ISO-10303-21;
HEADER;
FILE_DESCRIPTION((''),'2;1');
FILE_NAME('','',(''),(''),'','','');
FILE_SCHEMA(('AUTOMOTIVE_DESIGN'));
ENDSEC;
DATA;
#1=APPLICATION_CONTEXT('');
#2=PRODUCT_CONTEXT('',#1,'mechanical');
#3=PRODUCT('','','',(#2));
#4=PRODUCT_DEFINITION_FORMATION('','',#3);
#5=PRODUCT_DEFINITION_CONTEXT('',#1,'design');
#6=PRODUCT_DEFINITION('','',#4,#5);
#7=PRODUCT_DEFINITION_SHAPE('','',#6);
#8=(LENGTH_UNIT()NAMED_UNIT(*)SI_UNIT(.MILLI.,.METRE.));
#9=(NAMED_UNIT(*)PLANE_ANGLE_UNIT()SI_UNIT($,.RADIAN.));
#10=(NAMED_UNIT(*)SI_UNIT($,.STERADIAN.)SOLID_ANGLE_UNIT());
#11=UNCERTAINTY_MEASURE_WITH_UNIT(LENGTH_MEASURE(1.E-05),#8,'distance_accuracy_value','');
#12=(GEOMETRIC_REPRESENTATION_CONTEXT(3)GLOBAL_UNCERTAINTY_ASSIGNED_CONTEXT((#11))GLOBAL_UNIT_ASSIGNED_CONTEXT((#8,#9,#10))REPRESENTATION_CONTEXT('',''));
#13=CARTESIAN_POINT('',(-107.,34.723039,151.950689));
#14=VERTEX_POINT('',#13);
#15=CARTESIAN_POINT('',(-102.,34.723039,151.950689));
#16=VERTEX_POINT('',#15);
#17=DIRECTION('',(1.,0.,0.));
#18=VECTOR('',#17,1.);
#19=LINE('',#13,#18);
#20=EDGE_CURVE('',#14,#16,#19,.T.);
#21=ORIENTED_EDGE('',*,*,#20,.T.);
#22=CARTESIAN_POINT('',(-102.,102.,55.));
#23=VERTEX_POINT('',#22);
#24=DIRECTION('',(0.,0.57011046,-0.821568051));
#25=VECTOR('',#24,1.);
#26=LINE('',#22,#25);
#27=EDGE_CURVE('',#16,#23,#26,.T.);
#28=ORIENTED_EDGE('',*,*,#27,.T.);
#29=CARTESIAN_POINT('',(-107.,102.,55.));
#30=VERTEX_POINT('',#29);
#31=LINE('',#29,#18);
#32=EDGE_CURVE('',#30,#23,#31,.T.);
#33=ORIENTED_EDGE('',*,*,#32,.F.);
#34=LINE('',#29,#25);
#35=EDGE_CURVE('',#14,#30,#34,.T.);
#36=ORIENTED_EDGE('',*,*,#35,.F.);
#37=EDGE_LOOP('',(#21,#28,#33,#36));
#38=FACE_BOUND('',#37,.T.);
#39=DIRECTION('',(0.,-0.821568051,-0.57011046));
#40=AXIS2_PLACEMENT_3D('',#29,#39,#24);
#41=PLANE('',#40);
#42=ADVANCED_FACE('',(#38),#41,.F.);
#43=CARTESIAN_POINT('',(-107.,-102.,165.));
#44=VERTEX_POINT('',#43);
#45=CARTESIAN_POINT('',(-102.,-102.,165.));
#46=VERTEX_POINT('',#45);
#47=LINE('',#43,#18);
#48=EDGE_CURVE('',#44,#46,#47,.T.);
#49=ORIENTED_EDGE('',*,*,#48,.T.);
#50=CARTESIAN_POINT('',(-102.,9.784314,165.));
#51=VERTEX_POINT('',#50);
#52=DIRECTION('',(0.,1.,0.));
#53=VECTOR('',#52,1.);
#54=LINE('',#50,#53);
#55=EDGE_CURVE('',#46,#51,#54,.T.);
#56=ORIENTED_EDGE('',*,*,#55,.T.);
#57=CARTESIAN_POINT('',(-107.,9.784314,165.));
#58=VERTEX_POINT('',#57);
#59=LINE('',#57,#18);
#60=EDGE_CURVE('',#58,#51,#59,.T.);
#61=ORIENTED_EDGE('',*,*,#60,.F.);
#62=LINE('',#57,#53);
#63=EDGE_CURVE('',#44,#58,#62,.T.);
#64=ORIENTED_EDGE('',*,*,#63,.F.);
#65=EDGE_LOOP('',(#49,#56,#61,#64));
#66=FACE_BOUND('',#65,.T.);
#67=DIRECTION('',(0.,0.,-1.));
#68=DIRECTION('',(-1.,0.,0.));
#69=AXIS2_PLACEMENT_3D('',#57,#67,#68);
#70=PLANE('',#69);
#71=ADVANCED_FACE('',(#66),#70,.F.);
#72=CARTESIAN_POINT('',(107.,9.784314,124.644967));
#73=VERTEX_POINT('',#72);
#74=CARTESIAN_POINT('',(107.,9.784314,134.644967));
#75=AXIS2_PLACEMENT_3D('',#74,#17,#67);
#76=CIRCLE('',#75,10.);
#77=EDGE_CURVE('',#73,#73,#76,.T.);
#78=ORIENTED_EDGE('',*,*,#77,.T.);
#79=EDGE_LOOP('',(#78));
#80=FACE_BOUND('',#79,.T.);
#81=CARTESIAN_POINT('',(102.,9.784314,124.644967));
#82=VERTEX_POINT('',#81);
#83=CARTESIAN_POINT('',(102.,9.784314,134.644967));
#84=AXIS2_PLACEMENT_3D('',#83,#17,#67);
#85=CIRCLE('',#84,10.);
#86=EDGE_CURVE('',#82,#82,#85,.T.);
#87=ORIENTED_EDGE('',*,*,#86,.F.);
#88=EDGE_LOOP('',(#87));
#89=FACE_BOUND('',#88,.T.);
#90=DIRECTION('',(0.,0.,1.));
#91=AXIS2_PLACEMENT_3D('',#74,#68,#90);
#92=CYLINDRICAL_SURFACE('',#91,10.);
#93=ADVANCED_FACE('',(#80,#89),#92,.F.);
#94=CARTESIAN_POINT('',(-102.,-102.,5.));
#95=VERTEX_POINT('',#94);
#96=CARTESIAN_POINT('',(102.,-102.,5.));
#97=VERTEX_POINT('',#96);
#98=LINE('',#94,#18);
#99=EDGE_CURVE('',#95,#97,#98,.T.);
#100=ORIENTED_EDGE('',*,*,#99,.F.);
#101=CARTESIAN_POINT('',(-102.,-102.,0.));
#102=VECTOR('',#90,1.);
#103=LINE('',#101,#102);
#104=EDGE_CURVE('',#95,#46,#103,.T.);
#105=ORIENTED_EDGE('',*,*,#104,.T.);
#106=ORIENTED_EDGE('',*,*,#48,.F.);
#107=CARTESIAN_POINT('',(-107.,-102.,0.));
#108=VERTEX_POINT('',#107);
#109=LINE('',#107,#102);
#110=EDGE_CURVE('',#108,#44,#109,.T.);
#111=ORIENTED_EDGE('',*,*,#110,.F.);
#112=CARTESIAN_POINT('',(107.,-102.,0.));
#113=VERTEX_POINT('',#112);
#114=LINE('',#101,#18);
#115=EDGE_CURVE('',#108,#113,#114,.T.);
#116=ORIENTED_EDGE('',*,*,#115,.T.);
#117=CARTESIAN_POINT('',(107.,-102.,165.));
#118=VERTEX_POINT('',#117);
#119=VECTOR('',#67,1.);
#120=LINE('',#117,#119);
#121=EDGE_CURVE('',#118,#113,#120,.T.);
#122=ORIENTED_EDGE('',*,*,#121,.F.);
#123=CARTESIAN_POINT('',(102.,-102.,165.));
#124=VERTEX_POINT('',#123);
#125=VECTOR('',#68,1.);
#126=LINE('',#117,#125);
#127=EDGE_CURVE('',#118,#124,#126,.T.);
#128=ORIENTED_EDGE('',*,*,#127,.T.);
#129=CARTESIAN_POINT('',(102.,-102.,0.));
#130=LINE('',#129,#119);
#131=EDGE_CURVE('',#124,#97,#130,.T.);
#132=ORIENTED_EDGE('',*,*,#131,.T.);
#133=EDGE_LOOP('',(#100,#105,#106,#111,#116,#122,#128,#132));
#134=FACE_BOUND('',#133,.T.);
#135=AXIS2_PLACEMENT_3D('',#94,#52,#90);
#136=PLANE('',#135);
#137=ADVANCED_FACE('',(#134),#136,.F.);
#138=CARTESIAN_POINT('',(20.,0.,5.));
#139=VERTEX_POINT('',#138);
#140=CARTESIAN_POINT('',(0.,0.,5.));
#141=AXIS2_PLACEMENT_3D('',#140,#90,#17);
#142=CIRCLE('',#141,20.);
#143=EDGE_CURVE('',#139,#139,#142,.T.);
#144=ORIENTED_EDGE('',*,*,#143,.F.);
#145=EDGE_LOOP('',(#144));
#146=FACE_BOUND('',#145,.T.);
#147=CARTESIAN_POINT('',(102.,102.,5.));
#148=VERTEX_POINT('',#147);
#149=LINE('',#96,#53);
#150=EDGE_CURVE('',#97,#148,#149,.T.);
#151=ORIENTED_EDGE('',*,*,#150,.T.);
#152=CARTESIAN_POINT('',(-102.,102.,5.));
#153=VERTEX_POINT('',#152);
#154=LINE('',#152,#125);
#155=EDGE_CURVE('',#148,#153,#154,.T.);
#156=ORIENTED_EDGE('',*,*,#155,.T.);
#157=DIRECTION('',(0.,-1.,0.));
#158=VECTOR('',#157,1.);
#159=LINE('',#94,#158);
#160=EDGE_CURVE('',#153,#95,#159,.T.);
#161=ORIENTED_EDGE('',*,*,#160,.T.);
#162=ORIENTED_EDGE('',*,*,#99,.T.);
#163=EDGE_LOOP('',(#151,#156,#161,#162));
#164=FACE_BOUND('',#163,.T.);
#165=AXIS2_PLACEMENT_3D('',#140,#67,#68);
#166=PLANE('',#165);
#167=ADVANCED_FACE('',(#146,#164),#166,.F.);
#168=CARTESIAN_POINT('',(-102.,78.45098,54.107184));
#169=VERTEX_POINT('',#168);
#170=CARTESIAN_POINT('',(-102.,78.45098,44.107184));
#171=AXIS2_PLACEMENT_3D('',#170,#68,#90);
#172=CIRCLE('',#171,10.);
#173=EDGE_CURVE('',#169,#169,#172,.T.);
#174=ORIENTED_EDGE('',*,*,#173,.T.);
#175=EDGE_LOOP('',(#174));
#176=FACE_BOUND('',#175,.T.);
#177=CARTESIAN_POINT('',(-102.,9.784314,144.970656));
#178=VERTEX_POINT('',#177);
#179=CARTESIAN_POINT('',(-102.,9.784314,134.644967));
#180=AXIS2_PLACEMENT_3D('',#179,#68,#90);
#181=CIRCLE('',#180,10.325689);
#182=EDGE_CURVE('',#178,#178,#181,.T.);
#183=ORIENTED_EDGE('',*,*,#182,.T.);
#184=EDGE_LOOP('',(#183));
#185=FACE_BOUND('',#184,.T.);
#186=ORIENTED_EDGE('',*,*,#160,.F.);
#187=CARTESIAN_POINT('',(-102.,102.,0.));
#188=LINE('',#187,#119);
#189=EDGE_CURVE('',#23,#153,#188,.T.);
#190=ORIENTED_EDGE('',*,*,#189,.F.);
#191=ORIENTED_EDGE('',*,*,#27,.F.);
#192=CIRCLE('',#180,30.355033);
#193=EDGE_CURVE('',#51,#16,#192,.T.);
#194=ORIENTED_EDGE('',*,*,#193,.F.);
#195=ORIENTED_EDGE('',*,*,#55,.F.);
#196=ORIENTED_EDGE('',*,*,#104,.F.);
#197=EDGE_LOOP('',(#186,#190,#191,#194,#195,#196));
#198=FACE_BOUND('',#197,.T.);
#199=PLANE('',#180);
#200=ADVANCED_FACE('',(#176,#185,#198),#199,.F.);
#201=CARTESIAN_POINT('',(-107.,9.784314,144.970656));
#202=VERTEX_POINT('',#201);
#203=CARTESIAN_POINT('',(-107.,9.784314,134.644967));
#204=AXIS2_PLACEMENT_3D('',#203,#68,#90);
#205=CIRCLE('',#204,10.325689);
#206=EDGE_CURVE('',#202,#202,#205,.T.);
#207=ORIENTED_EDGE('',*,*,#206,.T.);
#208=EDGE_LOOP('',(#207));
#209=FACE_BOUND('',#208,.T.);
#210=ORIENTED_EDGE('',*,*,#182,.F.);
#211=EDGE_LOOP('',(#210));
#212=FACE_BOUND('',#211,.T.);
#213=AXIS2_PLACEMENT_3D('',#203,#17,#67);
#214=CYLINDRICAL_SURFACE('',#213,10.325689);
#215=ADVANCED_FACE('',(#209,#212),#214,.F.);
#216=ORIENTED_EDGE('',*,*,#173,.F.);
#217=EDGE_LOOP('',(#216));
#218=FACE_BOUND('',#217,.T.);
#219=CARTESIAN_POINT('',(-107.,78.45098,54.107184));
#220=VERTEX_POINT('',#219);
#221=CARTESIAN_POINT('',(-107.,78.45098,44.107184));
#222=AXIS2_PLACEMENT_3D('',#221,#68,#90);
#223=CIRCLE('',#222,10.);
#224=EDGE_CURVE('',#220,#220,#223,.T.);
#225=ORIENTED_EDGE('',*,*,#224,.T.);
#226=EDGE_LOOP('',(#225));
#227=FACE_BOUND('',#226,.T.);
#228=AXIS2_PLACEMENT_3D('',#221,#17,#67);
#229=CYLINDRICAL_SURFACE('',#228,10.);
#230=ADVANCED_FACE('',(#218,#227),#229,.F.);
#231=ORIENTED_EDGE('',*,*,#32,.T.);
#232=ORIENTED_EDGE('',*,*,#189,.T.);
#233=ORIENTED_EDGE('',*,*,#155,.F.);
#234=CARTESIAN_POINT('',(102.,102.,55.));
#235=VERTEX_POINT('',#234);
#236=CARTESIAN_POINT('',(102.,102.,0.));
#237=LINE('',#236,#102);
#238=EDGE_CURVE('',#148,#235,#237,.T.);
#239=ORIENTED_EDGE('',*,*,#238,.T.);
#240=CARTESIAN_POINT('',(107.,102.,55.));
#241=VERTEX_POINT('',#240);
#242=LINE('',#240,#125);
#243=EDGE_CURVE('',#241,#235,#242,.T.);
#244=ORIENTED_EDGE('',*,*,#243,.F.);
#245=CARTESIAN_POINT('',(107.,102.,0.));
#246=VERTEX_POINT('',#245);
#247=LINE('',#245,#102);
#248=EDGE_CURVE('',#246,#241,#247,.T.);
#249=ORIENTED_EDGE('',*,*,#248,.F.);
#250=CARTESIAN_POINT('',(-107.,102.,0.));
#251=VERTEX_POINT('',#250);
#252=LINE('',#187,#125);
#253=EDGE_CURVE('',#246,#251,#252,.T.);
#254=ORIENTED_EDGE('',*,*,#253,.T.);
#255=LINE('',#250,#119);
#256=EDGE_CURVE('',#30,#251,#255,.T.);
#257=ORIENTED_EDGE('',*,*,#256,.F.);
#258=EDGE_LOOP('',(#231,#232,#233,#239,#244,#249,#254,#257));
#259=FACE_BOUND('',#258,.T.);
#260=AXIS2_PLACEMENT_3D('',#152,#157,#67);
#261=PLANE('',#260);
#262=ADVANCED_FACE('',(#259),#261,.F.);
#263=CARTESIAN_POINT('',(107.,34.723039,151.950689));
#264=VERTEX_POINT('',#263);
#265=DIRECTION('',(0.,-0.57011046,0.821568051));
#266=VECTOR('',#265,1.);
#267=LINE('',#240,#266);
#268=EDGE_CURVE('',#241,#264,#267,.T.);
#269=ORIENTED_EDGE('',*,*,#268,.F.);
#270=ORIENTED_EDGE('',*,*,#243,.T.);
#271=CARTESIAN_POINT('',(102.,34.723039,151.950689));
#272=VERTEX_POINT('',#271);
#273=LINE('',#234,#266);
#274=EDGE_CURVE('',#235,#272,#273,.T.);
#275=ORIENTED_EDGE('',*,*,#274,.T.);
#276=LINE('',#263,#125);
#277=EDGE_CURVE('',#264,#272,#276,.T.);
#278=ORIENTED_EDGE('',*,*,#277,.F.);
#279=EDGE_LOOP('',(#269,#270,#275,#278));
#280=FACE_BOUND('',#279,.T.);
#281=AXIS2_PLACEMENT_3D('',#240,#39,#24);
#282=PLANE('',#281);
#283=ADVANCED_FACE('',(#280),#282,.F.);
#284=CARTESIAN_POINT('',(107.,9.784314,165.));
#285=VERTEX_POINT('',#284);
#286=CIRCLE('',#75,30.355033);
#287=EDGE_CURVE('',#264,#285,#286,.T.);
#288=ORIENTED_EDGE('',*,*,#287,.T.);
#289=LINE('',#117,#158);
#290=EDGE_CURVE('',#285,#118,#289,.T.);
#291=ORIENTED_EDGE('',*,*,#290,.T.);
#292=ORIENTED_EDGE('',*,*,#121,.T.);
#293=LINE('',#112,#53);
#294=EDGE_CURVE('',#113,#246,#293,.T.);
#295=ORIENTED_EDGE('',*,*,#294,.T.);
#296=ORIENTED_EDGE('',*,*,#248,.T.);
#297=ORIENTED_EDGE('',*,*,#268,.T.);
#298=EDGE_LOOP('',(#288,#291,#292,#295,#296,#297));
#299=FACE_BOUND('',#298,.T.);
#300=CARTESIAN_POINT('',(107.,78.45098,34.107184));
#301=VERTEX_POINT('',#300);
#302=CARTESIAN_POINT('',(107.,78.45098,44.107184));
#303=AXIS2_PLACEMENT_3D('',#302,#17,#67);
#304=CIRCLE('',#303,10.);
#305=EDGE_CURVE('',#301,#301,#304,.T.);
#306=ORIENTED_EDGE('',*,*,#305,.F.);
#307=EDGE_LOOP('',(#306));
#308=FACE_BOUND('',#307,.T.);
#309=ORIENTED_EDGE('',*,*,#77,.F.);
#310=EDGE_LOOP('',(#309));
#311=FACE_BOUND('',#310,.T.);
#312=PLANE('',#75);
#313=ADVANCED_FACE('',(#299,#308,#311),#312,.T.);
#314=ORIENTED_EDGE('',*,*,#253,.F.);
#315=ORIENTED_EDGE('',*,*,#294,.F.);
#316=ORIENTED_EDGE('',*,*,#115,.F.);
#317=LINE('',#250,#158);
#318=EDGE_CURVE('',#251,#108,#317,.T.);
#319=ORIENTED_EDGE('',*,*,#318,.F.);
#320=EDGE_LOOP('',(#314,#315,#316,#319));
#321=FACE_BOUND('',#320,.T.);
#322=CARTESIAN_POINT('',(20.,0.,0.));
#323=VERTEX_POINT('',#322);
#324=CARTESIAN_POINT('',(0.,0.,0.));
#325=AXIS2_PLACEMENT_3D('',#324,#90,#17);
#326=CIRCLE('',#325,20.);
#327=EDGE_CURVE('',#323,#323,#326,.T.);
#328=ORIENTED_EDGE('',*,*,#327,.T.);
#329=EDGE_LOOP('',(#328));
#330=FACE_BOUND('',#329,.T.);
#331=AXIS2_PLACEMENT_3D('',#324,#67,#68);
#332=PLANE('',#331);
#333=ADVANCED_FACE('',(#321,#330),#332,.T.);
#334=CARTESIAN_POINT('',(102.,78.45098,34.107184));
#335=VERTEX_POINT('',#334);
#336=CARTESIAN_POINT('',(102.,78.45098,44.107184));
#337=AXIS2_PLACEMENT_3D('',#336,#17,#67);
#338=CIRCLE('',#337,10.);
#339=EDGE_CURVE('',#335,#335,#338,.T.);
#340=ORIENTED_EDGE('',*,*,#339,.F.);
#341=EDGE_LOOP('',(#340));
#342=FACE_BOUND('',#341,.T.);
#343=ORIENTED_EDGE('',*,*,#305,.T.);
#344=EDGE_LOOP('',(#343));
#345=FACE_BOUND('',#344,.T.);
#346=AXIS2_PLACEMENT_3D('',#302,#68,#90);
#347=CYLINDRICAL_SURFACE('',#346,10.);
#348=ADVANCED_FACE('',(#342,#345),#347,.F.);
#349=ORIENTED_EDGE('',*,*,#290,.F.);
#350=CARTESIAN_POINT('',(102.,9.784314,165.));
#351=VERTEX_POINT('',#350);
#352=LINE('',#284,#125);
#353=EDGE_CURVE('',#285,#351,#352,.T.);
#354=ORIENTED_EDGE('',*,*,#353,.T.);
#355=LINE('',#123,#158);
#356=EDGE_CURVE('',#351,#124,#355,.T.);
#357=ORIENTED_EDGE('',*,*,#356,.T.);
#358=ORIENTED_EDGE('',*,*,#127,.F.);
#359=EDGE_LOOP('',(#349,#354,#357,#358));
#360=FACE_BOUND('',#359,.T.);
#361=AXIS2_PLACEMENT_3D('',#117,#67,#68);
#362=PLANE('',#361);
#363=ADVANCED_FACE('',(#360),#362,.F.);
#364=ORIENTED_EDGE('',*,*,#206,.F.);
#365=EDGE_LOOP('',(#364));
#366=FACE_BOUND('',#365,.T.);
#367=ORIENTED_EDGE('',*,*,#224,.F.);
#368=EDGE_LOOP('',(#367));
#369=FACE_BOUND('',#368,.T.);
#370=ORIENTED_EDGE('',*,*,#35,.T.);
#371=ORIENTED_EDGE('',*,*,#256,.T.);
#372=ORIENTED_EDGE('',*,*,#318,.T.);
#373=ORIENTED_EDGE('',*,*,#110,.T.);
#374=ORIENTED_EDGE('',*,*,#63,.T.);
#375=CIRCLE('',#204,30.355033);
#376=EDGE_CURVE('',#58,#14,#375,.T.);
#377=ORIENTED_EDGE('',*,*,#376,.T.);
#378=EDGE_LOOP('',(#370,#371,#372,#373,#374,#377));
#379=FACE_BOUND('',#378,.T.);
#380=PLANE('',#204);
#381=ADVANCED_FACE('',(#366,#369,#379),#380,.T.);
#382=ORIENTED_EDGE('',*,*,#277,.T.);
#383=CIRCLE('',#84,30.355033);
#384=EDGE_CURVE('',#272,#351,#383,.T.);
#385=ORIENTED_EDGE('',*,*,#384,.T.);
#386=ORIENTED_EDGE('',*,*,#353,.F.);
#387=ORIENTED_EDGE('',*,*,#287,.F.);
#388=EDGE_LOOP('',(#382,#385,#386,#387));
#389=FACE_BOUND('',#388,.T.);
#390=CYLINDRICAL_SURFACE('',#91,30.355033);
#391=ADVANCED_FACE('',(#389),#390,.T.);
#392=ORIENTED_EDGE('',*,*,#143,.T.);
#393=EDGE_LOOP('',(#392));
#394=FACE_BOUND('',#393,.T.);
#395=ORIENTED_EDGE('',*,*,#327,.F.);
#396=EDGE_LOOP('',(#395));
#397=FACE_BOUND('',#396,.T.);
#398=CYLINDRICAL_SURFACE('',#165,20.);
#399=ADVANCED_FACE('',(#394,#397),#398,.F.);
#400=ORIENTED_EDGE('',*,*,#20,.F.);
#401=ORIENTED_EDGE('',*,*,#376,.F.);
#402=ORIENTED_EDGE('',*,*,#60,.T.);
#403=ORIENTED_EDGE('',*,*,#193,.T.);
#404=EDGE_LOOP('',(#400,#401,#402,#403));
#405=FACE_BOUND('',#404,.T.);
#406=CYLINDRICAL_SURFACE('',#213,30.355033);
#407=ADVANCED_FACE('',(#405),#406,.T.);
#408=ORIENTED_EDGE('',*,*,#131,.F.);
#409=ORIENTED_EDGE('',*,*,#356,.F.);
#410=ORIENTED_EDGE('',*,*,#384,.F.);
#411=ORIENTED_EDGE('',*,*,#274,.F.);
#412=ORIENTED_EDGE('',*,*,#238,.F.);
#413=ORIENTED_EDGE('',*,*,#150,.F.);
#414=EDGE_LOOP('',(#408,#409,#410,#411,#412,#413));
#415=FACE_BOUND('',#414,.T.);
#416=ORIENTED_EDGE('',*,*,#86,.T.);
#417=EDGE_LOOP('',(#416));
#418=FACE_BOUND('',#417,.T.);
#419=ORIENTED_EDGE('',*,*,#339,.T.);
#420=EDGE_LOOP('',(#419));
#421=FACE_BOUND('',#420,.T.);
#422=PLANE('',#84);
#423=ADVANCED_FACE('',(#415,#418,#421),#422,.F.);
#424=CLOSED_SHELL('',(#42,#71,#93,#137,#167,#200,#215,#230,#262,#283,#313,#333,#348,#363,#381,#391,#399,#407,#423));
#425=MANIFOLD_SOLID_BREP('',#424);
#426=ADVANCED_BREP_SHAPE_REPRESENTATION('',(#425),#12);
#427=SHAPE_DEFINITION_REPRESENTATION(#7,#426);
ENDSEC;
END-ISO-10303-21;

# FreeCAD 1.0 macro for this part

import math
import FreeCAD as App
import Part
import Sketcher
from FreeCAD import Vector
Q = App.Units.Quantity

doc = App.newDocument("Part")
body = doc.addObject("PartDesign::Body", "Body")

# Sketch on XY plane
sketch1 = doc.addObject("Sketcher::SketchObject", "Sketch")
body.addObject(sketch1)
sketch1.AttachmentSupport = (doc.XY_Plane, [""])
sketch1.MapMode = "FlatFace"
sketch1.addGeometry(Part.LineSegment(Vector(-102, 102, 0), Vector(-102, -102, 0)), False)
sketch1.addGeometry(Part.LineSegment(Vector(-102, -102, 0), Vector(102, -102, 0)), False)
sketch1.addGeometry(Part.LineSegment(Vector(102, -102, 0), Vector(102, 102, 0)), False)
sketch1.addGeometry(Part.LineSegment(Vector(102, 102, 0), Vector(-102, 102, 0)), False)
sketch1.addGeometry(Part.Circle(Vector(0, 0, 0), Vector(0, 0, 1), 20), False)
sketch1.addConstraint(Sketcher.Constraint("Coincident", 0, 2, 1, 1))
sketch1.addConstraint(Sketcher.Constraint("Coincident", 1, 2, 2, 1))
sketch1.addConstraint(Sketcher.Constraint("Coincident", 2, 2, 3, 1))
sketch1.addConstraint(Sketcher.Constraint("Coincident", 3, 2, 0, 1))
sketch1.addConstraint(Sketcher.Constraint("Vertical", 0))
sketch1.addConstraint(Sketcher.Constraint("Horizontal", 1))
sketch1.addConstraint(Sketcher.Constraint("Vertical", 2))
sketch1.addConstraint(Sketcher.Constraint("Horizontal", 3))
sketch1.addConstraint(Sketcher.Constraint("Coincident", 4, 3, -1, 1))
sketch1.addConstraint(Sketcher.Constraint("Symmetric", 0, 2, 2, 2, -1, 1))
sketch1.addConstraint(Sketcher.Constraint("Equal", 3, 0))
sketch1.addConstraint(Sketcher.Constraint("Diameter", 4, Q("40 mm")))
sketch1.addConstraint(Sketcher.Constraint("DistanceX", 1, 1, 1, 2, Q("204 mm")))
pad1 = doc.addObject("PartDesign::Pad", "Pad")
body.addObject(pad1)
pad1.Profile = sketch1
pad1.Length = 5

# Sketch on YZ plane
sketch2 = doc.addObject("Sketcher::SketchObject", "Sketch001")
body.addObject(sketch2)
sketch2.AttachmentSupport = (doc.YZ_Plane, [""])
sketch2.MapMode = "FlatFace"
sketch2.AttachmentOffset = App.Placement(Vector(0, 0, 102), App.Rotation())
sketch2.addGeometry(Part.LineSegment(Vector(102, 0, 0), Vector(102, 55, 0)), False)
sketch2.addGeometry(Part.LineSegment(Vector(102, 55, 0), Vector(35, 152, 0)), False)
sketch2.addGeometry(Part.ArcOfCircle(Part.Circle(Vector(10, 135, 0), Vector(0, 0, 1), 30), math.radians(35), math.radians(90)), False)
sketch2.addGeometry(Part.LineSegment(Vector(10, 165, 0), Vector(-102, 165, 0)), False)
sketch2.addGeometry(Part.LineSegment(Vector(-102, 165, 0), Vector(-102, 0, 0)), False)
sketch2.addGeometry(Part.LineSegment(Vector(-102, 0, 0), Vector(102, 0, 0)), False)
sketch2.addGeometry(Part.Circle(Vector(10, 135, 0), Vector(0, 0, 1), 10), False)
sketch2.addGeometry(Part.Circle(Vector(78, 44, 0), Vector(0, 0, 1), 10), False)
sketch2.addConstraint(Sketcher.Constraint("Coincident", 0, 2, 1, 1))
sketch2.addConstraint(Sketcher.Constraint("Tangent", 1, 2, 2, 1))
sketch2.addConstraint(Sketcher.Constraint("Tangent", 2, 2, 3, 1))
sketch2.addConstraint(Sketcher.Constraint("Coincident", 3, 2, 4, 1))
sketch2.addConstraint(Sketcher.Constraint("Coincident", 4, 2, 5, 1))
sketch2.addConstraint(Sketcher.Constraint("Coincident", 5, 2, 0, 1))
sketch2.addConstraint(Sketcher.Constraint("Vertical", 0))
sketch2.addConstraint(Sketcher.Constraint("Horizontal", 3))
sketch2.addConstraint(Sketcher.Constraint("Vertical", 4))
sketch2.addConstraint(Sketcher.Constraint("Horizontal", 5))
sketch2.addConstraint(Sketcher.Constraint("Coincident", 6, 3, 2, 3))
sketch2.addConstraint(Sketcher.Constraint("Equal", 6, 7))
sketch2.addConstraint(Sketcher.Constraint("Symmetric", 4, 2, 5, 2, -1, 1))
sketch2.addConstraint(Sketcher.Constraint("Diameter", 6, Q("20 mm")))
sketch2.addConstraint(Sketcher.Constraint("DistanceX", 5, 1, 5, 2, Q("204 mm")))
sketch2.addConstraint(Sketcher.Constraint("DistanceY", 0, 1, 0, 2, Q("55 mm")))
sketch2.addConstraint(Sketcher.Constraint("DistanceY", 4, 2, 4, 1, Q("165 mm")))
sketch2.addConstraint(Sketcher.Constraint("Radius", 2, Q("30.355033 mm")))
sketch2.addConstraint(Sketcher.Constraint("DistanceX", 3, 2, 3, 1, Q("111.784314 mm")))
sketch2.addConstraint(Sketcher.Constraint("DistanceX", -1, 1, 7, 3, Q("78.45098 mm")))
sketch2.addConstraint(Sketcher.Constraint("DistanceY", -1, 1, 7, 3, Q("44.107184 mm")))
pad2 = doc.addObject("PartDesign::Pad", "Pad001")
body.addObject(pad2)
pad2.Profile = sketch2
pad2.Length = 5

# Sketch on YZ plane
sketch3 = doc.addObject("Sketcher::SketchObject", "Sketch002")
body.addObject(sketch3)
sketch3.AttachmentSupport = (doc.YZ_Plane, [""])
sketch3.MapMode = "FlatFace"
sketch3.AttachmentOffset = App.Placement(Vector(0, 0, -107), App.Rotation())
sketch3.addGeometry(Part.LineSegment(Vector(102, 0, 0), Vector(-102, 0, 0)), False)
sketch3.addGeometry(Part.LineSegment(Vector(-102, 0, 0), Vector(-102, 165, 0)), False)
sketch3.addGeometry(Part.LineSegment(Vector(-102, 165, 0), Vector(10, 165, 0)), False)
sketch3.addGeometry(Part.ArcOfCircle(Part.Circle(Vector(10, 135, 0), Vector(0, 0, 1), 30), math.radians(35), math.radians(90)), False)
sketch3.addGeometry(Part.LineSegment(Vector(35, 152, 0), Vector(102, 55, 0)), False)
sketch3.addGeometry(Part.LineSegment(Vector(102, 55, 0), Vector(102, 0, 0)), False)
sketch3.addGeometry(Part.Circle(Vector(10, 135, 0), Vector(0, 0, 1), 10), False)
sketch3.addGeometry(Part.Circle(Vector(78, 44, 0), Vector(0, 0, 1), 10), False)
sketch3.addConstraint(Sketcher.Constraint("Coincident", 0, 2, 1, 1))
sketch3.addConstraint(Sketcher.Constraint("Coincident", 1, 2, 2, 1))
sketch3.addConstraint(Sketcher.Constraint("Tangent", 2, 2, 3, 2))
sketch3.addConstraint(Sketcher.Constraint("Tangent", 3, 1, 4, 1))
sketch3.addConstraint(Sketcher.Constraint("Coincident", 4, 2, 5, 1))
sketch3.addConstraint(Sketcher.Constraint("Coincident", 5, 2, 0, 1))
sketch3.addConstraint(Sketcher.Constraint("Horizontal", 0))
sketch3.addConstraint(Sketcher.Constraint("Vertical", 1))
sketch3.addConstraint(Sketcher.Constraint("Horizontal", 2))
sketch3.addConstraint(Sketcher.Constraint("Vertical", 5))
sketch3.addConstraint(Sketcher.Constraint("Coincident", 6, 3, 3, 3))
sketch3.addConstraint(Sketcher.Constraint("Symmetric", 0, 2, 5, 2, -1, 1))
sketch3.addConstraint(Sketcher.Constraint("Diameter", 7, Q("20 mm")))
sketch3.addConstraint(Sketcher.Constraint("DistanceX", 0, 2, 0, 1, Q("204 mm")))
sketch3.addConstraint(Sketcher.Constraint("DistanceY", 1, 1, 1, 2, Q("165 mm")))
sketch3.addConstraint(Sketcher.Constraint("DistanceY", 5, 2, 5, 1, Q("55 mm")))
sketch3.addConstraint(Sketcher.Constraint("Diameter", 6, Q("20.651378 mm")))
sketch3.addConstraint(Sketcher.Constraint("Radius", 3, Q("30.355033 mm")))
sketch3.addConstraint(Sketcher.Constraint("DistanceX", 2, 1, 2, 2, Q("111.784314 mm")))
sketch3.addConstraint(Sketcher.Constraint("DistanceX", -1, 1, 7, 3, Q("78.45098 mm")))
sketch3.addConstraint(Sketcher.Constraint("DistanceY", -1, 1, 7, 3, Q("44.107184 mm")))
pad3 = doc.addObject("PartDesign::Pad", "Pad002")
body.addObject(pad3)
pad3.Profile = sketch3
pad3.Length = 5

doc.recompute()
